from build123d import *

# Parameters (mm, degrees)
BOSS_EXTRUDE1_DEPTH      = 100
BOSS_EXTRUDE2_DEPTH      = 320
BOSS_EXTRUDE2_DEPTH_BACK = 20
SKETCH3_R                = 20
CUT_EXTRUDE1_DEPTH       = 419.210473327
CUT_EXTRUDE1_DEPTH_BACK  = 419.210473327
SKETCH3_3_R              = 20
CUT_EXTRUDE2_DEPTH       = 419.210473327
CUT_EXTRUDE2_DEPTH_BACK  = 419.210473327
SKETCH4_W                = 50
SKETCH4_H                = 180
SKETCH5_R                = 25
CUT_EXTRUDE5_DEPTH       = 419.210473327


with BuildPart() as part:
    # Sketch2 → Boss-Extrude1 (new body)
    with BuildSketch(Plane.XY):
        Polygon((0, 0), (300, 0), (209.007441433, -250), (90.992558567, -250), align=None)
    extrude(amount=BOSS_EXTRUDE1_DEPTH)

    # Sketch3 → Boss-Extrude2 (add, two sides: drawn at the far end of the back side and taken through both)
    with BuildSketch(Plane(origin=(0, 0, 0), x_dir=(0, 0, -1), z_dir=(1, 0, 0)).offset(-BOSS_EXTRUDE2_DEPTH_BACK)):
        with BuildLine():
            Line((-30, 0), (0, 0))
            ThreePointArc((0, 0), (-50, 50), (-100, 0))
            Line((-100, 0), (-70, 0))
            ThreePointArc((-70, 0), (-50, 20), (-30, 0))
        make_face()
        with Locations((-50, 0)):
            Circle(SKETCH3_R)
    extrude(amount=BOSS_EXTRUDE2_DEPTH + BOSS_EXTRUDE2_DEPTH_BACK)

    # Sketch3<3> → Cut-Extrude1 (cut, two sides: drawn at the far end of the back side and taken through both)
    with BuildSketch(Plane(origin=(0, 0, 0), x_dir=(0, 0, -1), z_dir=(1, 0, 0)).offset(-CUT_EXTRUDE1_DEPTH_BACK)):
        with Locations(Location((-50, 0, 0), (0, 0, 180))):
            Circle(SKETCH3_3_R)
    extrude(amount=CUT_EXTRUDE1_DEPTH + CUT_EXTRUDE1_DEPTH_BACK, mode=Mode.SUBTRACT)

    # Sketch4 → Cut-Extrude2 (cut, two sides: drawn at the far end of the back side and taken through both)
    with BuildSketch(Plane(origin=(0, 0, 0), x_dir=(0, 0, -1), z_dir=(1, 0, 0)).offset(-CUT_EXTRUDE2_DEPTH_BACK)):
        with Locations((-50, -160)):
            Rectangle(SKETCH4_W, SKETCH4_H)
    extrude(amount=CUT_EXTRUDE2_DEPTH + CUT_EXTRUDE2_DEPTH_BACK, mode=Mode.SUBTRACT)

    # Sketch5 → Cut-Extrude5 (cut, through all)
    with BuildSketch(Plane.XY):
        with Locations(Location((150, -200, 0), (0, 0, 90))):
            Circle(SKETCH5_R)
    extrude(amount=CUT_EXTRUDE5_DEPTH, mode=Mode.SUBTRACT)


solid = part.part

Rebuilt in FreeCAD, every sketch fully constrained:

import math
import FreeCAD as App
import Part
import Sketcher
Q = App.Units.Quantity

doc = App.newDocument("Part")
params = doc.addObject("Spreadsheet::Sheet", "Params")
for row, (alias, value) in enumerate([
    ("sketch1_width", "300 mm"),
    ("pad1_length", "100 mm"),
    ("sketch2_radius", "50 mm"),
    ("sketch2_radius2", "20 mm"),
    ("pad2_length", "320 mm"),
    ("pad2_length2", "20 mm"),
    ("sketch3_diameter", "40 mm"),
    ("sketch4_width", "180 mm"),
    ("sketch4_height", "50 mm"),
    ("sketch5_diameter", "50 mm"),
], start=1):
    params.set(f"A{row}", alias)
    params.set(f"B{row}", "=" + value)
    params.setAlias(f"B{row}", alias)

body = doc.addObject("PartDesign::Body", "Body")

# Sketch on XY plane
sketch1 = body.newObject("Sketcher::SketchObject", "Sketch")
sketch1.AttachmentSupport = (doc.getObject("XY_Plane"), [""])
sketch1.MapMode = "FlatFace"
sketch1.addGeometry(Part.LineSegment(App.Vector(300, 0, 0), App.Vector(0, 0, 0)), False)
sketch1.addGeometry(Part.LineSegment(App.Vector(0, 0, 0), App.Vector(90.992559, -250, 0)), False)
sketch1.addGeometry(Part.LineSegment(App.Vector(90.992559, -250, 0), App.Vector(209.007441, -250, 0)), False)
sketch1.addGeometry(Part.LineSegment(App.Vector(209.007441, -250, 0), App.Vector(300, 0, 0)), False)
sketch1.addConstraint(Sketcher.Constraint("Coincident", 0, 2, 1, 1))
sketch1.addConstraint(Sketcher.Constraint("Coincident", 1, 2, 2, 1))
sketch1.addConstraint(Sketcher.Constraint("Coincident", 2, 2, 3, 1))
sketch1.addConstraint(Sketcher.Constraint("Coincident", 3, 2, 0, 1))
sketch1.addConstraint(Sketcher.Constraint("Horizontal", 0))
sketch1.addConstraint(Sketcher.Constraint("Horizontal", 2))
sketch1.addConstraint(Sketcher.Constraint("Coincident", 0, 2, -1, 1))
sketch1.addConstraint(Sketcher.Constraint("Equal", 1, 3))
sketch1.addConstraint(Sketcher.Constraint("DistanceX", 0, 2, 0, 1, Q("300 mm")))
sketch1.addConstraint(Sketcher.Constraint("Angle", 1, Q("-70 deg")))
sketch1.addConstraint(Sketcher.Constraint("DistanceY", 1, 2, -1, 1, Q("250 mm")))
sketch1.setExpression("Constraints[8]", "Params.sketch1_width")
pad1 = body.newObject("PartDesign::Pad", "Pad")
pad1.Profile = sketch1
pad1.setExpression("Length", "Params.pad1_length")

# Sketch on YZ plane
sketch2 = body.newObject("Sketcher::SketchObject", "Sketch001")
sketch2.AttachmentSupport = (doc.getObject("YZ_Plane"), [""])
sketch2.MapMode = "FlatFace"
sketch2.addGeometry(Part.LineSegment(App.Vector(0, 30, 0), App.Vector(0, 0, 0)), False)
sketch2.addGeometry(Part.ArcOfCircle(Part.Circle(App.Vector(0, 50, 0), App.Vector(0, 0, 1), 50), math.radians(-90), math.radians(90)), False)
sketch2.addGeometry(Part.LineSegment(App.Vector(0, 100, 0), App.Vector(0, 70, 0)), False)
sketch2.addGeometry(Part.ArcOfCircle(Part.Circle(App.Vector(0, 50, 0), App.Vector(0, 0, 1), 20), math.radians(90), math.radians(270)), False)
sketch2.addConstraint(Sketcher.Constraint("Coincident", 0, 2, 1, 1))
sketch2.addConstraint(Sketcher.Constraint("Coincident", 1, 2, 2, 1))
sketch2.addConstraint(Sketcher.Constraint("Coincident", 2, 2, 3, 1))
sketch2.addConstraint(Sketcher.Constraint("Coincident", 3, 2, 0, 1))
sketch2.addConstraint(Sketcher.Constraint("Vertical", 0))
sketch2.addConstraint(Sketcher.Constraint("Vertical", 2))
sketch2.addConstraint(Sketcher.Constraint("Coincident", 0, 2, -1, 1))
sketch2.addConstraint(Sketcher.Constraint("Coincident", 3, 3, 1, 3))
sketch2.addConstraint(Sketcher.Constraint("PointOnObject", 1, 3, -2))
sketch2.addConstraint(Sketcher.Constraint("PointOnObject", 1, 2, -2))
sketch2.addConstraint(Sketcher.Constraint("Radius", 1, Q("50 mm")))
sketch2.addConstraint(Sketcher.Constraint("Radius", 3, Q("20 mm")))
sketch2.setExpression("Constraints[10]", "Params.sketch2_radius")
sketch2.setExpression("Constraints[11]", "Params.sketch2_radius2")
pad2 = body.newObject("PartDesign::Pad", "Pad001")
pad2.Profile = sketch2
pad2.Type = "TwoLengths"
pad2.setExpression("Length", "Params.pad2_length")
pad2.setExpression("Length2", "Params.pad2_length2")

# Sketch on YZ plane
sketch3 = body.newObject("Sketcher::SketchObject", "Sketch002")
sketch3.AttachmentSupport = (doc.getObject("YZ_Plane"), [""])
sketch3.MapMode = "FlatFace"
sketch3.addGeometry(Part.Circle(App.Vector(0, 50, 0), App.Vector(0, 0, 1), 20), False)
sketch3.addConstraint(Sketcher.Constraint("PointOnObject", 0, 3, -2))
sketch3.addConstraint(Sketcher.Constraint("Diameter", 0, Q("40 mm")))
sketch3.addConstraint(Sketcher.Constraint("DistanceY", -1, 1, 0, 3, Q("50 mm")))
sketch3.setExpression("Constraints[1]", "Params.sketch3_diameter")
pocket1 = body.newObject("PartDesign::Pocket", "Pocket")
pocket1.Profile = sketch3
pocket1.Type = "ThroughAll"
pocket1.Midplane = True

# Sketch on YZ plane
sketch4 = body.newObject("Sketcher::SketchObject", "Sketch003")
sketch4.AttachmentSupport = (doc.getObject("YZ_Plane"), [""])
sketch4.MapMode = "FlatFace"
sketch4.addGeometry(Part.LineSegment(App.Vector(-70, 75, 0), App.Vector(-250, 75, 0)), False)
sketch4.addGeometry(Part.LineSegment(App.Vector(-250, 75, 0), App.Vector(-250, 25, 0)), False)
sketch4.addGeometry(Part.LineSegment(App.Vector(-250, 25, 0), App.Vector(-70, 25, 0)), False)
sketch4.addGeometry(Part.LineSegment(App.Vector(-70, 25, 0), App.Vector(-70, 75, 0)), False)
sketch4.addConstraint(Sketcher.Constraint("Coincident", 0, 2, 1, 1))
sketch4.addConstraint(Sketcher.Constraint("Coincident", 1, 2, 2, 1))
sketch4.addConstraint(Sketcher.Constraint("Coincident", 2, 2, 3, 1))
sketch4.addConstraint(Sketcher.Constraint("Coincident", 3, 2, 0, 1))
sketch4.addConstraint(Sketcher.Constraint("Horizontal", 0))
sketch4.addConstraint(Sketcher.Constraint("Vertical", 1))
sketch4.addConstraint(Sketcher.Constraint("Horizontal", 2))
sketch4.addConstraint(Sketcher.Constraint("Vertical", 3))
sketch4.addConstraint(Sketcher.Constraint("DistanceX", 0, 2, 0, 1, Q("180 mm")))
sketch4.addConstraint(Sketcher.Constraint("DistanceY", 1, 2, 1, 1, Q("50 mm")))
sketch4.addConstraint(Sketcher.Constraint("DistanceX", 0, 2, -1, 1, Q("250 mm")))
sketch4.addConstraint(Sketcher.Constraint("DistanceY", -1, 1, 0, 2, Q("75 mm")))
sketch4.setExpression("Constraints[8]", "Params.sketch4_width")
sketch4.setExpression("Constraints[9]", "Params.sketch4_height")
pocket2 = body.newObject("PartDesign::Pocket", "Pocket001")
pocket2.Profile = sketch4
pocket2.Type = "ThroughAll"
pocket2.Midplane = True

# Sketch on XY plane
sketch5 = body.newObject("Sketcher::SketchObject", "Sketch004")
sketch5.AttachmentSupport = (doc.getObject("XY_Plane"), [""])
sketch5.MapMode = "FlatFace"
sketch5.addGeometry(Part.Circle(App.Vector(150, -200, 0), App.Vector(0, 0, 1), 25), False)
sketch5.addConstraint(Sketcher.Constraint("Diameter", 0, Q("50 mm")))
sketch5.addConstraint(Sketcher.Constraint("DistanceX", -1, 1, 0, 3, Q("150 mm")))
sketch5.addConstraint(Sketcher.Constraint("DistanceY", 0, 3, -1, 1, Q("200 mm")))
sketch5.setExpression("Constraints[0]", "Params.sketch5_diameter")
pocket3 = body.newObject("PartDesign::Pocket", "Pocket002")
pocket3.Profile = sketch5
pocket3.Type = "ThroughAll"
pocket3.Reversed = True

doc.recompute()
